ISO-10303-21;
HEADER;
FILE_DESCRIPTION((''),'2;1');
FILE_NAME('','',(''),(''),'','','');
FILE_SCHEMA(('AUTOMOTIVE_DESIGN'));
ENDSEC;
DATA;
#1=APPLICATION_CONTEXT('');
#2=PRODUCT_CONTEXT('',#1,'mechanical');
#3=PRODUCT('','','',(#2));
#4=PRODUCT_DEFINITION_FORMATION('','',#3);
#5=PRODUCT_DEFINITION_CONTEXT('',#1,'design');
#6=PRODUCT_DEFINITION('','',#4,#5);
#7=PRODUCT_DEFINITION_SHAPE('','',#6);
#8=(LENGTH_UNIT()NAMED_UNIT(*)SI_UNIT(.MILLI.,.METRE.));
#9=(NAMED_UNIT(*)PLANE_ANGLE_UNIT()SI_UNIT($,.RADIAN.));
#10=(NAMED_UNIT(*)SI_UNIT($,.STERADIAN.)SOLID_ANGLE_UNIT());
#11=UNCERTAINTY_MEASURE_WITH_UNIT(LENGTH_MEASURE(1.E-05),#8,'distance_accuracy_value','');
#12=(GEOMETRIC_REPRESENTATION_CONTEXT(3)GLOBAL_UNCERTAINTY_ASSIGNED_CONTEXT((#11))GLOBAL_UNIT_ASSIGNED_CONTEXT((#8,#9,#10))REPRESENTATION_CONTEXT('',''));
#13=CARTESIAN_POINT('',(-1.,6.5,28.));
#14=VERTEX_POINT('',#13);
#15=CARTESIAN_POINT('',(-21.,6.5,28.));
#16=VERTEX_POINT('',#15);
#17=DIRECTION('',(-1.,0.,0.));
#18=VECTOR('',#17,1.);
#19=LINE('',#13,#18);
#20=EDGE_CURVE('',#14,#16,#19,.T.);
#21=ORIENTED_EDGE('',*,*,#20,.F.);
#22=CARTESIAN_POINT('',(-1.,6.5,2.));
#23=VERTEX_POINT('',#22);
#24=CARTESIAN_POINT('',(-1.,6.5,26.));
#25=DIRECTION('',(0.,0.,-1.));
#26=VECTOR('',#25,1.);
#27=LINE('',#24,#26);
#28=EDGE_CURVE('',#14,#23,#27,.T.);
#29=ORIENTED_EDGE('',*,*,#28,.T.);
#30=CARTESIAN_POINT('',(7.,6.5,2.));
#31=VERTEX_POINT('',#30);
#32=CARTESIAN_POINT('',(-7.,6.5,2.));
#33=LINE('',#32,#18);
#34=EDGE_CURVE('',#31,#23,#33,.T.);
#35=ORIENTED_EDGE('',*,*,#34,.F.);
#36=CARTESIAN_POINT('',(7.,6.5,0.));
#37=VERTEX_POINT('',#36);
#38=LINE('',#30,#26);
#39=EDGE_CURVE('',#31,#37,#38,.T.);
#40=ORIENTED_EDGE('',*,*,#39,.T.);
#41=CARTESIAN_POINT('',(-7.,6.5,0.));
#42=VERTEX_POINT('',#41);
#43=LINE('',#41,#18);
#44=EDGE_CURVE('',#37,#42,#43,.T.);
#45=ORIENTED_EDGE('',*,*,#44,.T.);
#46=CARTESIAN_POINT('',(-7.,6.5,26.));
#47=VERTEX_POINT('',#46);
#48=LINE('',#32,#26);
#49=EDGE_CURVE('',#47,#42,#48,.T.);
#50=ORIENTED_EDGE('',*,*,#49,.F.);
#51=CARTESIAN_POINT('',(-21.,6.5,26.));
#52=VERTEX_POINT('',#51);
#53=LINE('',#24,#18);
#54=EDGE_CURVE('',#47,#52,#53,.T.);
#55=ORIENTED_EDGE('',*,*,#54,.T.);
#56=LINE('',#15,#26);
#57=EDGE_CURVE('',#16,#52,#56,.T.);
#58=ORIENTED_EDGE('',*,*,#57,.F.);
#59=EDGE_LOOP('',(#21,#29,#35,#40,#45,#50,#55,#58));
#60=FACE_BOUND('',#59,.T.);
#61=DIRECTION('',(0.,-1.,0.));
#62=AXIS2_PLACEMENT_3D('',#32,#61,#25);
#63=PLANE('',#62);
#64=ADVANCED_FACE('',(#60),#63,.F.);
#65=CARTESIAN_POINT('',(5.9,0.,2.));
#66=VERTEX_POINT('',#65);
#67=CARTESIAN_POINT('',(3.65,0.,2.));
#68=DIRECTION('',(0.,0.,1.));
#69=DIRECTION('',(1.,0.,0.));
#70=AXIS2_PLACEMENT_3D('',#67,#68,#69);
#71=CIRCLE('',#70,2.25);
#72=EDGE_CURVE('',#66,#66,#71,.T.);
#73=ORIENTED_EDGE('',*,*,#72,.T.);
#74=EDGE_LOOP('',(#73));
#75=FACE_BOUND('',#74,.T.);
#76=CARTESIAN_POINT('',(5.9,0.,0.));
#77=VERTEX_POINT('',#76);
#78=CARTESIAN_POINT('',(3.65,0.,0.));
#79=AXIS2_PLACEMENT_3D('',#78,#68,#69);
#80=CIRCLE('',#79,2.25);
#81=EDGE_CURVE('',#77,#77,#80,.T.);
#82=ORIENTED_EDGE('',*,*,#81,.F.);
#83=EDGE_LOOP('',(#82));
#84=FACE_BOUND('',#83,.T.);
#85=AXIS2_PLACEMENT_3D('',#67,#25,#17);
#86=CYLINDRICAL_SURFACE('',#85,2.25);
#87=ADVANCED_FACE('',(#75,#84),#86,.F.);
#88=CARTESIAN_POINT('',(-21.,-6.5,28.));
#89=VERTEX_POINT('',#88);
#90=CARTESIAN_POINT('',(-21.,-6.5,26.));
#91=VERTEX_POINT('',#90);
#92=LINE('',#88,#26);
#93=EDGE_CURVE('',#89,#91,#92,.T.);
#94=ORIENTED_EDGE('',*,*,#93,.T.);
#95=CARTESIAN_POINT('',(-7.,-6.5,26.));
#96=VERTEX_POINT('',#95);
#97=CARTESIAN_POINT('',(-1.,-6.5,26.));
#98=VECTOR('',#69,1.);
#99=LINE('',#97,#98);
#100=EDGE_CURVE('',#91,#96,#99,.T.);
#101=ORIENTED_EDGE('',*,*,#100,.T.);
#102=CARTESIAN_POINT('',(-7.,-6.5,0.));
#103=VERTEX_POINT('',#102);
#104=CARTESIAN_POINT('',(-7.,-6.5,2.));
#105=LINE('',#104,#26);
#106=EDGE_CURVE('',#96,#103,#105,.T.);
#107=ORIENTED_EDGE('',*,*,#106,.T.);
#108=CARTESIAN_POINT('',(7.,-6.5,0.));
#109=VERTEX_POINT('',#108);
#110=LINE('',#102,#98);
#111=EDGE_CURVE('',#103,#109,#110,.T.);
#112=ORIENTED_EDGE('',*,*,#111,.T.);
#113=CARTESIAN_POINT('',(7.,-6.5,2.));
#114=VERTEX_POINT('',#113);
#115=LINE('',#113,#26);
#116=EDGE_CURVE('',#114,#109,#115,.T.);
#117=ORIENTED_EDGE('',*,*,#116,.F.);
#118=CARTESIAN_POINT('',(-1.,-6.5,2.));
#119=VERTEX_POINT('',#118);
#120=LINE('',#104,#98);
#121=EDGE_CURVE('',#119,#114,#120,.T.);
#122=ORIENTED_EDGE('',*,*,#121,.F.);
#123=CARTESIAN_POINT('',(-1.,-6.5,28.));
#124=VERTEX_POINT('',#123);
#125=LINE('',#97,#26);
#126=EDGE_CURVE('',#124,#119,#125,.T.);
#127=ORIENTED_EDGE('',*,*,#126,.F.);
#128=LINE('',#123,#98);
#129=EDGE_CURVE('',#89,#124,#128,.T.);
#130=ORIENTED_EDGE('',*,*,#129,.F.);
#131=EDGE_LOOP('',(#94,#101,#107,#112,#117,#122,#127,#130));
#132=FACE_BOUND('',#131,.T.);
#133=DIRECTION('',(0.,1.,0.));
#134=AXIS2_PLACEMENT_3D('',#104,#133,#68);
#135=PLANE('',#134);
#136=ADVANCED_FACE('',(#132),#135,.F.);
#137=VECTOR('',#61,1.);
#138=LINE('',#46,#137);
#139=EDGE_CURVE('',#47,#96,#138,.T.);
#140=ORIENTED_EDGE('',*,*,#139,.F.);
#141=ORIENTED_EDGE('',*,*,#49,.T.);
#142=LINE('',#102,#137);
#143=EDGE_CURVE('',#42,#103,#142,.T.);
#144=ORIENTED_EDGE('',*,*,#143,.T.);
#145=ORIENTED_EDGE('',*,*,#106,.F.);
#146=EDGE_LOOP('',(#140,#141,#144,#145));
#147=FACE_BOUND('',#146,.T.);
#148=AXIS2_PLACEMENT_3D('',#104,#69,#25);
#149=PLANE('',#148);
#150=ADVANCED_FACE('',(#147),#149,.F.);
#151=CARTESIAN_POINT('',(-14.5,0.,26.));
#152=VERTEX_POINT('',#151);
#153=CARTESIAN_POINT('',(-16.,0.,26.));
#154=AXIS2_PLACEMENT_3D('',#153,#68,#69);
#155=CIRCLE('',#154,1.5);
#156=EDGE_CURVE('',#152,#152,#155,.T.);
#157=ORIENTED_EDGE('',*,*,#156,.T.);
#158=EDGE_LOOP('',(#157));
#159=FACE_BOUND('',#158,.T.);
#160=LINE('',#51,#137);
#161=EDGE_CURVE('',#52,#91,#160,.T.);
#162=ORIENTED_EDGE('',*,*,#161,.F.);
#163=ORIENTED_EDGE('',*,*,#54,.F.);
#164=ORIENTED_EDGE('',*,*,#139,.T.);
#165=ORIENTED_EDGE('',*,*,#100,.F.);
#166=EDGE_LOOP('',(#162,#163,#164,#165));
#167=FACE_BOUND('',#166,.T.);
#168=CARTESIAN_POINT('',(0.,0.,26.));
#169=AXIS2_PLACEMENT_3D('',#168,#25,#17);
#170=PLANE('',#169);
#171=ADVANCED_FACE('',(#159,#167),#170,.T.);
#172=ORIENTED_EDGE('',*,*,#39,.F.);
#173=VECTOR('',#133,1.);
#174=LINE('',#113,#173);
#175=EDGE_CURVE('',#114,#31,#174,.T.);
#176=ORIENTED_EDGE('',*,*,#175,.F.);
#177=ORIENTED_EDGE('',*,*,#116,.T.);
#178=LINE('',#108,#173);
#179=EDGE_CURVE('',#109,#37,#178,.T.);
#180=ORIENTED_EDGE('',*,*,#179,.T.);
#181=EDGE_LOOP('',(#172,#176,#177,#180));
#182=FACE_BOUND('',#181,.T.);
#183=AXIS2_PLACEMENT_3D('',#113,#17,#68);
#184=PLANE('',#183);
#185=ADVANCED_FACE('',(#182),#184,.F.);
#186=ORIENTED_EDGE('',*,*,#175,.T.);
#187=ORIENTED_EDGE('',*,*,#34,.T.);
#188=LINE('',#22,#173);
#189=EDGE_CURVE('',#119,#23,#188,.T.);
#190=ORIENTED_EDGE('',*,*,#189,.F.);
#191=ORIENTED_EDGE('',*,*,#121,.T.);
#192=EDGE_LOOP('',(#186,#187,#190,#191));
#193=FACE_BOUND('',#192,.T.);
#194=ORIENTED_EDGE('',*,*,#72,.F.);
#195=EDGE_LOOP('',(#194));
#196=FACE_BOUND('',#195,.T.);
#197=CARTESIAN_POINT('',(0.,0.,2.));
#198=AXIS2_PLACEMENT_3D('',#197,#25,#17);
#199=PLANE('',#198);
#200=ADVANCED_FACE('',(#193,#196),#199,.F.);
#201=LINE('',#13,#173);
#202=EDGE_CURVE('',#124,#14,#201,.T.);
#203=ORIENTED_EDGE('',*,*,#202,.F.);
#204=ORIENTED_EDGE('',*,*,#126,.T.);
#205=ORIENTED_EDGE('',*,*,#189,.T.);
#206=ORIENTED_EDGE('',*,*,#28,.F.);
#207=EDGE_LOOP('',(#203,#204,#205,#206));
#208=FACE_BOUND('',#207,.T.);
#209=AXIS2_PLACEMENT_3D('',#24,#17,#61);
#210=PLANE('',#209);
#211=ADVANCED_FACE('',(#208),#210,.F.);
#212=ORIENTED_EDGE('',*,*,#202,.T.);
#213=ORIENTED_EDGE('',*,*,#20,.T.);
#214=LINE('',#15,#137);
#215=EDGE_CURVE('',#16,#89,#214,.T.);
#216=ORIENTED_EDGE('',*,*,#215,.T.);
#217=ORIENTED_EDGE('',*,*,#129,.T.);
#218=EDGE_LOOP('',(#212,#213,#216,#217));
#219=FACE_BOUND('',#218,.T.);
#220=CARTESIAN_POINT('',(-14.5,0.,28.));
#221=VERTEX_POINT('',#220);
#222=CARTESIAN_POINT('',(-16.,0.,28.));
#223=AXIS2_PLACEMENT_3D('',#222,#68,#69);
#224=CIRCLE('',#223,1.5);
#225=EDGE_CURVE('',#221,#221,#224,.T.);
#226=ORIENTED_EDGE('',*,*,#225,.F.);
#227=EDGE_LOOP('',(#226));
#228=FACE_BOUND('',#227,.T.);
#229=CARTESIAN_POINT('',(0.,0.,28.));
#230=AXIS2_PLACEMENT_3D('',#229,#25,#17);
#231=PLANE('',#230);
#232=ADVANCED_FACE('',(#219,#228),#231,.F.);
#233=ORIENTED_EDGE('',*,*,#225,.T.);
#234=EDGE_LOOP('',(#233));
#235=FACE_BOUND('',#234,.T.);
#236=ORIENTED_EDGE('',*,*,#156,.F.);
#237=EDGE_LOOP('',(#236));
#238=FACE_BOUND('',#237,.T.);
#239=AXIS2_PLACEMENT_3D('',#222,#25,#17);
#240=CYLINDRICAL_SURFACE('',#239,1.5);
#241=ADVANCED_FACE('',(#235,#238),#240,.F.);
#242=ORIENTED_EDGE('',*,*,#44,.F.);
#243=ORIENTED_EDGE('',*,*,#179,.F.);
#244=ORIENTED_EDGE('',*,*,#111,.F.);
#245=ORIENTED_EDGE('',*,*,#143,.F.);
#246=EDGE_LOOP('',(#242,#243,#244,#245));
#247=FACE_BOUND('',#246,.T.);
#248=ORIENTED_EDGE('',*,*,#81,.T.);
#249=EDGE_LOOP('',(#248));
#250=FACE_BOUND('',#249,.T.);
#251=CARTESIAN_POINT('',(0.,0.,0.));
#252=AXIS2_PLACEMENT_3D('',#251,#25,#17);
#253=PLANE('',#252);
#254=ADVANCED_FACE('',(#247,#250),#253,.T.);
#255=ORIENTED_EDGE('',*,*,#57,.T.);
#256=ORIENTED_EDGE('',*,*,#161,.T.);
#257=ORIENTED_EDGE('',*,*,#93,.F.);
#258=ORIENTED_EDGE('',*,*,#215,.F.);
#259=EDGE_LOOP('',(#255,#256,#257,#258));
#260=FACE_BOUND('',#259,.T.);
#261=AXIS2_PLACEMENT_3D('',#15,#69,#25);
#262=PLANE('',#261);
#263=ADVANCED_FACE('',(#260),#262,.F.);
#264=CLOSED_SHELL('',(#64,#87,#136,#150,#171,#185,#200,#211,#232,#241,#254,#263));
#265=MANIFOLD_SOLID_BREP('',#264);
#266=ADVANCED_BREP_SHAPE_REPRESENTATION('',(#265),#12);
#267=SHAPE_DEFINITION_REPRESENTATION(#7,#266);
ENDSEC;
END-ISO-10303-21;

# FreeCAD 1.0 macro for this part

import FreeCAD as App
import Part
import Sketcher

V = App.Vector
Q = App.Units.Quantity


def add_polygon(sketch, points):
    """Adds a closed chain of lines whose ends are joined by coincident constraints."""
    first, n = sketch.GeometryCount, len(points)
    for a, b in zip(points, points[1:] + points[:1]):
        sketch.addGeometry(Part.LineSegment(App.Vector(*a, 0), App.Vector(*b, 0)), False)
    for i in range(n):
        sketch.addConstraint(Sketcher.Constraint("Coincident", first + i, 2, first + (i + 1) % n, 1))

doc = App.newDocument("Part")
body = doc.addObject("PartDesign::Body", "Body")

sketch1 = doc.addObject("Sketcher::SketchObject", "Sketch")
body.addObject(sketch1)
sketch1.AttachmentSupport = (doc.XY_Plane, [""])
sketch1.MapMode = "FlatFace"
add_polygon(sketch1, [(-7, 6.5), (-7, -6.5), (7, -6.5), (7, 6.5)])
sketch1.addGeometry(Part.Circle(V(3.65, 0, 0), V(0, 0, 1), 2.25), False)
sketch1.addConstraint(Sketcher.Constraint("Vertical", 0))
sketch1.addConstraint(Sketcher.Constraint("Horizontal", 1))
sketch1.addConstraint(Sketcher.Constraint("Vertical", 2))
sketch1.addConstraint(Sketcher.Constraint("Horizontal", 3))
sketch1.addConstraint(Sketcher.Constraint("Symmetric", 0, 2, 2, 2, -1, 1))
sketch1.addConstraint(Sketcher.Constraint("PointOnObject", 4, 3, -1))
sketch1.addConstraint(Sketcher.Constraint("Diameter", 4, Q("4.5 mm")))
sketch1.addConstraint(Sketcher.Constraint("DistanceX", 1, 1, 1, 2, Q("14 mm")))
sketch1.addConstraint(Sketcher.Constraint("DistanceY", 0, 2, 0, 1, Q("13 mm")))
sketch1.addConstraint(Sketcher.Constraint("DistanceX", -1, 1, 4, 3, Q("3.65 mm")))
pad1 = doc.addObject("PartDesign::Pad", "Pad")
body.addObject(pad1)
pad1.Profile = sketch1
pad1.Length = 2

sketch2 = doc.addObject("Sketcher::SketchObject", "Sketch001")
body.addObject(sketch2)
sketch2.AttachmentSupport = (doc.XY_Plane, [""])
sketch2.MapMode = "FlatFace"
sketch2.AttachmentOffset = App.Placement(V(0, 0, 2), App.Rotation())
add_polygon(sketch2, [(-7, 6.5), (-7, -6.5), (-1, -6.5), (-1, 6.5)])
sketch2.addConstraint(Sketcher.Constraint("Vertical", 0))
sketch2.addConstraint(Sketcher.Constraint("Horizontal", 1))
sketch2.addConstraint(Sketcher.Constraint("Vertical", 2))
sketch2.addConstraint(Sketcher.Constraint("Horizontal", 3))
sketch2.addConstraint(Sketcher.Constraint("DistanceX", 1, 1, 1, 2, Q("6 mm")))
sketch2.addConstraint(Sketcher.Constraint("DistanceY", 0, 2, 0, 1, Q("13 mm")))
sketch2.addConstraint(Sketcher.Constraint("DistanceX", 0, 2, -1, 1, Q("7 mm")))
sketch2.addConstraint(Sketcher.Constraint("DistanceY", 0, 2, -1, 1, Q("6.5 mm")))
pad2 = doc.addObject("PartDesign::Pad", "Pad001")
body.addObject(pad2)
pad2.Profile = sketch2
pad2.Length = 24

sketch3 = doc.addObject("Sketcher::SketchObject", "Sketch002")
body.addObject(sketch3)
sketch3.AttachmentSupport = (doc.XY_Plane, [""])
sketch3.MapMode = "FlatFace"
sketch3.AttachmentOffset = App.Placement(V(0, 0, 26), App.Rotation())
add_polygon(sketch3, [(-21, 6.5), (-21, -6.5), (-1, -6.5), (-1, 6.5)])
sketch3.addGeometry(Part.Circle(V(-16, 0, 0), V(0, 0, 1), 1.5), False)
sketch3.addConstraint(Sketcher.Constraint("Vertical", 0))
sketch3.addConstraint(Sketcher.Constraint("Horizontal", 1))
sketch3.addConstraint(Sketcher.Constraint("Vertical", 2))
sketch3.addConstraint(Sketcher.Constraint("Horizontal", 3))
sketch3.addConstraint(Sketcher.Constraint("PointOnObject", 4, 3, -1))
sketch3.addConstraint(Sketcher.Constraint("Diameter", 4, Q("3 mm")))
sketch3.addConstraint(Sketcher.Constraint("DistanceX", 1, 1, 1, 2, Q("20 mm")))
sketch3.addConstraint(Sketcher.Constraint("DistanceY", 0, 2, 0, 1, Q("13 mm")))
sketch3.addConstraint(Sketcher.Constraint("DistanceX", 4, 3, -1, 1, Q("16 mm")))
sketch3.addConstraint(Sketcher.Constraint("DistanceX", 0, 2, -1, 1, Q("21 mm")))
sketch3.addConstraint(Sketcher.Constraint("DistanceY", 0, 2, -1, 1, Q("6.5 mm")))
pad3 = doc.addObject("PartDesign::Pad", "Pad002")
body.addObject(pad3)
pad3.Profile = sketch3
pad3.Length = 2

doc.recompute()
